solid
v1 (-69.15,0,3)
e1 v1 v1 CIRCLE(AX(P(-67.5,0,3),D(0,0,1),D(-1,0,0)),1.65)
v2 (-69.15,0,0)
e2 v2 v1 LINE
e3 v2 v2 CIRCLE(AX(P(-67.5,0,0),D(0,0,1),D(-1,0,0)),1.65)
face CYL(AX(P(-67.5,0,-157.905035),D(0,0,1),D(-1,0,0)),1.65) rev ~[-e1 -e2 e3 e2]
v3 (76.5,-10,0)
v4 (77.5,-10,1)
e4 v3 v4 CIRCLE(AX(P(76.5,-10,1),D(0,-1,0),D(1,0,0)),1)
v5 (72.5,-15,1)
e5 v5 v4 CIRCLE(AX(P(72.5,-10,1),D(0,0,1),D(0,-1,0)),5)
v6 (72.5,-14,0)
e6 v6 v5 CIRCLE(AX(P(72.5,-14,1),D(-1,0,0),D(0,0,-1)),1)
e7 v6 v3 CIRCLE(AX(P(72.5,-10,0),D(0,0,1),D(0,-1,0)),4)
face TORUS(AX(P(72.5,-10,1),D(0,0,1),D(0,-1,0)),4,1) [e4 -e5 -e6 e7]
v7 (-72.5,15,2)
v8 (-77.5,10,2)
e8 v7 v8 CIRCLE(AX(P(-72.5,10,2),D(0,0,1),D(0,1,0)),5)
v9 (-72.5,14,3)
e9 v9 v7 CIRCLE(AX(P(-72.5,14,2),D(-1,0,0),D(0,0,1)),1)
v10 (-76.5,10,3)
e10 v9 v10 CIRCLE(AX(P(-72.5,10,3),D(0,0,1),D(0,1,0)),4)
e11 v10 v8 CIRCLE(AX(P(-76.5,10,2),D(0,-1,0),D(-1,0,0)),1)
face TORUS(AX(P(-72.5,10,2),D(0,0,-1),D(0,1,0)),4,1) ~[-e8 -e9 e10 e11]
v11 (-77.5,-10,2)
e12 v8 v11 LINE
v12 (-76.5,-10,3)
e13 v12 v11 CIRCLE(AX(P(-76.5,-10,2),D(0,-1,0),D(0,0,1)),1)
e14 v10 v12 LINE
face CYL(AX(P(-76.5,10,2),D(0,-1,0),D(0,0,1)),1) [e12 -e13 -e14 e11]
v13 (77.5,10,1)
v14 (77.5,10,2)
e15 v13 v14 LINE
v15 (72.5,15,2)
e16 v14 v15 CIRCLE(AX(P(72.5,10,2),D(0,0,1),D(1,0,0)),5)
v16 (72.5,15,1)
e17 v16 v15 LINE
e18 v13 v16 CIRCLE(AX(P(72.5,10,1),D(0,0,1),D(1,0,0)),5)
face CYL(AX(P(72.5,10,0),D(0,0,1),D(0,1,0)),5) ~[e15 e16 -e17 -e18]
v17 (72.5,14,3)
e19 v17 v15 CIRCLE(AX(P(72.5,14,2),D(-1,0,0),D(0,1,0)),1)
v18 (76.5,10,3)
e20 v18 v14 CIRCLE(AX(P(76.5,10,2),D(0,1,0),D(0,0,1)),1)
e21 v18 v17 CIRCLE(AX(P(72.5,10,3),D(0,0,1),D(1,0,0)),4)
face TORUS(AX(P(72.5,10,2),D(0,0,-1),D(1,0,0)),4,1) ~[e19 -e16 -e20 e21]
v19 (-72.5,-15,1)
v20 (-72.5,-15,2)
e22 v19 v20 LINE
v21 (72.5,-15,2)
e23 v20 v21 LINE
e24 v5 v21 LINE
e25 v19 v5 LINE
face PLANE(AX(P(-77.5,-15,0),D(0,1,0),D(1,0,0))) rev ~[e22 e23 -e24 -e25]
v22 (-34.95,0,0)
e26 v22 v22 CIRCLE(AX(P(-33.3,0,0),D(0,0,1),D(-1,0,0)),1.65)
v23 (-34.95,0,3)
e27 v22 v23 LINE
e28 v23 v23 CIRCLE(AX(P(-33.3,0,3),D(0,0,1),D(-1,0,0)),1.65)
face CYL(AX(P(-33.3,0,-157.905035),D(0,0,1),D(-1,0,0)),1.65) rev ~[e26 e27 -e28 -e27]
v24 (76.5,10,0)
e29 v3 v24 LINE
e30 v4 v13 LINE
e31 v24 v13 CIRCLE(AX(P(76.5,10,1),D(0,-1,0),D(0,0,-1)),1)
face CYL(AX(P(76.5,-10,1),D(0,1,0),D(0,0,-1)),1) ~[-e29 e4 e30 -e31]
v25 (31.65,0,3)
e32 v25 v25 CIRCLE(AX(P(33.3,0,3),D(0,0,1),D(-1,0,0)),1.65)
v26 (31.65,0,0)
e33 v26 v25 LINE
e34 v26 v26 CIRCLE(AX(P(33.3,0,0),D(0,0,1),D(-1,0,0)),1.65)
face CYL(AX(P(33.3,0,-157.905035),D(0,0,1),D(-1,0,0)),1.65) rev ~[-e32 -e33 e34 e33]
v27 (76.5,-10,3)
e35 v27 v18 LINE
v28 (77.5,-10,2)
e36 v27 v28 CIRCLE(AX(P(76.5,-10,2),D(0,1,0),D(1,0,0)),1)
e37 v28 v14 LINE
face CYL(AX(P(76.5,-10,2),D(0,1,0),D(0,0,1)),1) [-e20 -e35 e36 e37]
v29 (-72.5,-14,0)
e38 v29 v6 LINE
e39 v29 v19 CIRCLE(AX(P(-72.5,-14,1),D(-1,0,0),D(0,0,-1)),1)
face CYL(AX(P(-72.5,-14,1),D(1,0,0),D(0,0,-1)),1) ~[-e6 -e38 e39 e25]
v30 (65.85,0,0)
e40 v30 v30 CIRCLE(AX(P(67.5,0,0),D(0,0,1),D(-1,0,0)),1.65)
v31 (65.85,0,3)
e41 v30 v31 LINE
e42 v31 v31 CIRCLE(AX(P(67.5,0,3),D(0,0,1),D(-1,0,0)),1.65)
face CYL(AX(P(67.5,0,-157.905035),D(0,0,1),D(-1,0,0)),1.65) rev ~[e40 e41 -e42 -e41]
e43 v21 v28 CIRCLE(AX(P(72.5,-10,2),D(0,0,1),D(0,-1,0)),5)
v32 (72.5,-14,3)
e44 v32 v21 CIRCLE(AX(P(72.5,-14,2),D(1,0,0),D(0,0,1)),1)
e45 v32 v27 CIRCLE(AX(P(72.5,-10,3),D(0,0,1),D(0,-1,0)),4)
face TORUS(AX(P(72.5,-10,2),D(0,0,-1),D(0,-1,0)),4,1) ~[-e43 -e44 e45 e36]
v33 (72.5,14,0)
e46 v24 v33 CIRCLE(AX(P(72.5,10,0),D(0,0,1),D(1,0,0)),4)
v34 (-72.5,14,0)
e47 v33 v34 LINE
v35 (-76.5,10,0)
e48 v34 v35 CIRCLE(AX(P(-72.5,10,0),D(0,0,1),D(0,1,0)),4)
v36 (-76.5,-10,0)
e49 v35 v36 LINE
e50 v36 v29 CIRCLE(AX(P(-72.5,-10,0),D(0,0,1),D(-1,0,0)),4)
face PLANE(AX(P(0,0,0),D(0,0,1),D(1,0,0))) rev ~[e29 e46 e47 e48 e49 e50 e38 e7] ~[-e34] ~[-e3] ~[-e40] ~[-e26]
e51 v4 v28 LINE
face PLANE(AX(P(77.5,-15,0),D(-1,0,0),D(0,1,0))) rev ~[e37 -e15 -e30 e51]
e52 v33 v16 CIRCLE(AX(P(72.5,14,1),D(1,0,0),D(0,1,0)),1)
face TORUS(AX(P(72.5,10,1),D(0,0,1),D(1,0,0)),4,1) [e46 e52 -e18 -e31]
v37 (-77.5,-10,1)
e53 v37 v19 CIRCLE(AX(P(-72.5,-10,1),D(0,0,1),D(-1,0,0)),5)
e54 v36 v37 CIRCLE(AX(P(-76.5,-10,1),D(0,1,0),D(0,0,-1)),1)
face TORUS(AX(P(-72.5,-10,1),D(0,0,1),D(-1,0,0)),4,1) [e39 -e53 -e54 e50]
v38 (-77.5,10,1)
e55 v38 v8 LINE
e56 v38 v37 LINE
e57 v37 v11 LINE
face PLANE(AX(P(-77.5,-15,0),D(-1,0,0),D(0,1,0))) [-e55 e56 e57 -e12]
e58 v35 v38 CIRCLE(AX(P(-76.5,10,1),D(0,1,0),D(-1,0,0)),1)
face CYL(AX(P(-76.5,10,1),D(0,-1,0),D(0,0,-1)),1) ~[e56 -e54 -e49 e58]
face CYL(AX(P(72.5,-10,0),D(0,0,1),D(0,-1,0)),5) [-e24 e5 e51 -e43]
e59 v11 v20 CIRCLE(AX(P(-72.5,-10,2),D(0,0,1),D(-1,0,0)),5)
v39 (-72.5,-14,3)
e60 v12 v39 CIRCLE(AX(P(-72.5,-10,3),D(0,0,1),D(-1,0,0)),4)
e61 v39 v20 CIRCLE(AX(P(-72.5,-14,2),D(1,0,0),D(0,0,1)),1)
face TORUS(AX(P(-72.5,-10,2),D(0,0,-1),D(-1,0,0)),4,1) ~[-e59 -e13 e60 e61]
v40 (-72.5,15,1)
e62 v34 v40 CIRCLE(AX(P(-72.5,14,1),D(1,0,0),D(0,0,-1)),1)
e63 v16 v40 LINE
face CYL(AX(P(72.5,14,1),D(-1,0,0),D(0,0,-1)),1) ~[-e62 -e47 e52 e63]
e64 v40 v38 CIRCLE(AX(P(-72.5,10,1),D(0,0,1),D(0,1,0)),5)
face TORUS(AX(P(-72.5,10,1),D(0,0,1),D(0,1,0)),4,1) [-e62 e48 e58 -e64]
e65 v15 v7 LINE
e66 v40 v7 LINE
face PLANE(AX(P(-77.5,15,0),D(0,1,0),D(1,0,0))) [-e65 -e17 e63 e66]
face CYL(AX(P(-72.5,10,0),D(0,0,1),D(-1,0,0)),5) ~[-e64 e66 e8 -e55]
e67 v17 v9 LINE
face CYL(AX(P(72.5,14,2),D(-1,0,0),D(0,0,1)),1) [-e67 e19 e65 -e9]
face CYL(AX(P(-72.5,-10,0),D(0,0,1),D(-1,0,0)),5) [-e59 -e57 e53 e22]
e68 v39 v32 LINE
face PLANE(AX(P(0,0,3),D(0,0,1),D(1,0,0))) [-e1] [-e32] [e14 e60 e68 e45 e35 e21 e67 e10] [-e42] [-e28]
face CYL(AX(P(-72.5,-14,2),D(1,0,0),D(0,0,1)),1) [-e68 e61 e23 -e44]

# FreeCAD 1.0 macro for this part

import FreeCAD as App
import Part
import Sketcher

V = App.Vector
Q = App.Units.Quantity


def edges_at(feature, points):
    """Names of the edges that pass closest to the given points."""
    edges = feature.Shape.Edges
    near = lambda p: min(range(len(edges)), key=lambda i: edges[i].distToShape(Part.Vertex(*p))[0])
    return sorted({f"Edge{near(p) + 1}" for p in points})

doc = App.newDocument("Part")
body = doc.addObject("PartDesign::Body", "Body")

sketch1 = body.newObject("Sketcher::SketchObject", "Sketch")
sketch1.AttachmentSupport = (doc.getObject("XY_Plane"), [""])
sketch1.MapMode = "FlatFace"
sketch1.addGeometry(Part.LineSegment(V(-78, 15, 0), V(-78, -15, 0)), False)
sketch1.addGeometry(Part.LineSegment(V(-78, -15, 0), V(78, -15, 0)), False)
sketch1.addGeometry(Part.LineSegment(V(78, -15, 0), V(78, 15, 0)), False)
sketch1.addGeometry(Part.LineSegment(V(78, 15, 0), V(-78, 15, 0)), False)
sketch1.addConstraint(Sketcher.Constraint("Coincident", 0, 2, 1, 1))
sketch1.addConstraint(Sketcher.Constraint("Coincident", 1, 2, 2, 1))
sketch1.addConstraint(Sketcher.Constraint("Coincident", 2, 2, 3, 1))
sketch1.addConstraint(Sketcher.Constraint("Coincident", 3, 2, 0, 1))
sketch1.addConstraint(Sketcher.Constraint("Vertical", 0))
sketch1.addConstraint(Sketcher.Constraint("Horizontal", 1))
sketch1.addConstraint(Sketcher.Constraint("Vertical", 2))
sketch1.addConstraint(Sketcher.Constraint("Horizontal", 3))
sketch1.addConstraint(Sketcher.Constraint("Symmetric", 0, 2, 2, 2, -1, 1))
sketch1.addConstraint(Sketcher.Constraint("DistanceX", 1, 1, 1, 2, Q("155 mm")))
sketch1.addConstraint(Sketcher.Constraint("DistanceY", 0, 2, 0, 1, Q("30 mm")))
pad1 = body.newObject("PartDesign::Pad", "Pad")
pad1.Profile = sketch1
pad1.Length = 3

sketch2 = body.newObject("Sketcher::SketchObject", "Sketch001")
sketch2.AttachmentSupport = (doc.getObject("XY_Plane"), [""])
sketch2.MapMode = "FlatFace"
sketch2.addGeometry(Part.Circle(V(-67.5, 0, 0), V(0, 0, 1), 1.6), False)
sketch2.addGeometry(Part.Circle(V(67.5, 0, 0), V(0, 0, 1), 1.6), False)
sketch2.addConstraint(Sketcher.Constraint("Equal", 0, 1))
sketch2.addConstraint(Sketcher.Constraint("Symmetric", 0, 3, 1, 3, -1, 1))
sketch2.addConstraint(Sketcher.Constraint("PointOnObject", 0, 3, -1))
sketch2.addConstraint(Sketcher.Constraint("Diameter", 0, Q("3.3 mm")))
sketch2.addConstraint(Sketcher.Constraint("DistanceX", 0, 3, 1, 3, Q("135 mm")))
doc.recompute()
hole = body.newObject("PartDesign::Hole", "Hole")
hole.Profile = sketch2
hole.ThreadType = "None"
hole.Diameter = 3.3
hole.DepthType = "ThroughAll"
hole.Reversed = True
doc.recompute()

fillet = body.newObject("PartDesign::Fillet", "Fillet")
fillet.Base = (hole, edges_at(hole, [
    (-77.5, 15, 1.5),
    (-77.5, -15, 1.5),
    (77.5, -15, 1.5),
    (77.5, 15, 1.5),
]))
fillet.Radius = 5
doc.recompute()

fillet2 = body.newObject("PartDesign::Fillet", "Fillet001")
fillet2.Base = (fillet, edges_at(fillet, [(0, -15, 3), (0, -15, 0)]))
fillet2.Radius = 1

sketch3 = body.newObject("Sketcher::SketchObject", "Sketch002")
sketch3.AttachmentSupport = (doc.getObject("XY_Plane"), [""])
sketch3.MapMode = "FlatFace"
sketch3.addGeometry(Part.Circle(V(-33.3, 0, 0), V(0, 0, 1), 1.6), False)
sketch3.addGeometry(Part.Circle(V(33.3, 0, 0), V(0, 0, 1), 1.6), False)
sketch3.addConstraint(Sketcher.Constraint("Equal", 0, 1))
sketch3.addConstraint(Sketcher.Constraint("Symmetric", 0, 3, 1, 3, -1, 1))
sketch3.addConstraint(Sketcher.Constraint("PointOnObject", 0, 3, -1))
sketch3.addConstraint(Sketcher.Constraint("Diameter", 0, Q("3.3 mm")))
sketch3.addConstraint(Sketcher.Constraint("DistanceX", 0, 3, -1, 1, Q("33.3 mm")))
doc.recompute()
hole2 = body.newObject("PartDesign::Hole", "Hole001")
hole2.Profile = sketch3
hole2.ThreadType = "None"
hole2.Diameter = 3.3
hole2.DepthType = "ThroughAll"
hole2.Reversed = True

doc.recompute()
